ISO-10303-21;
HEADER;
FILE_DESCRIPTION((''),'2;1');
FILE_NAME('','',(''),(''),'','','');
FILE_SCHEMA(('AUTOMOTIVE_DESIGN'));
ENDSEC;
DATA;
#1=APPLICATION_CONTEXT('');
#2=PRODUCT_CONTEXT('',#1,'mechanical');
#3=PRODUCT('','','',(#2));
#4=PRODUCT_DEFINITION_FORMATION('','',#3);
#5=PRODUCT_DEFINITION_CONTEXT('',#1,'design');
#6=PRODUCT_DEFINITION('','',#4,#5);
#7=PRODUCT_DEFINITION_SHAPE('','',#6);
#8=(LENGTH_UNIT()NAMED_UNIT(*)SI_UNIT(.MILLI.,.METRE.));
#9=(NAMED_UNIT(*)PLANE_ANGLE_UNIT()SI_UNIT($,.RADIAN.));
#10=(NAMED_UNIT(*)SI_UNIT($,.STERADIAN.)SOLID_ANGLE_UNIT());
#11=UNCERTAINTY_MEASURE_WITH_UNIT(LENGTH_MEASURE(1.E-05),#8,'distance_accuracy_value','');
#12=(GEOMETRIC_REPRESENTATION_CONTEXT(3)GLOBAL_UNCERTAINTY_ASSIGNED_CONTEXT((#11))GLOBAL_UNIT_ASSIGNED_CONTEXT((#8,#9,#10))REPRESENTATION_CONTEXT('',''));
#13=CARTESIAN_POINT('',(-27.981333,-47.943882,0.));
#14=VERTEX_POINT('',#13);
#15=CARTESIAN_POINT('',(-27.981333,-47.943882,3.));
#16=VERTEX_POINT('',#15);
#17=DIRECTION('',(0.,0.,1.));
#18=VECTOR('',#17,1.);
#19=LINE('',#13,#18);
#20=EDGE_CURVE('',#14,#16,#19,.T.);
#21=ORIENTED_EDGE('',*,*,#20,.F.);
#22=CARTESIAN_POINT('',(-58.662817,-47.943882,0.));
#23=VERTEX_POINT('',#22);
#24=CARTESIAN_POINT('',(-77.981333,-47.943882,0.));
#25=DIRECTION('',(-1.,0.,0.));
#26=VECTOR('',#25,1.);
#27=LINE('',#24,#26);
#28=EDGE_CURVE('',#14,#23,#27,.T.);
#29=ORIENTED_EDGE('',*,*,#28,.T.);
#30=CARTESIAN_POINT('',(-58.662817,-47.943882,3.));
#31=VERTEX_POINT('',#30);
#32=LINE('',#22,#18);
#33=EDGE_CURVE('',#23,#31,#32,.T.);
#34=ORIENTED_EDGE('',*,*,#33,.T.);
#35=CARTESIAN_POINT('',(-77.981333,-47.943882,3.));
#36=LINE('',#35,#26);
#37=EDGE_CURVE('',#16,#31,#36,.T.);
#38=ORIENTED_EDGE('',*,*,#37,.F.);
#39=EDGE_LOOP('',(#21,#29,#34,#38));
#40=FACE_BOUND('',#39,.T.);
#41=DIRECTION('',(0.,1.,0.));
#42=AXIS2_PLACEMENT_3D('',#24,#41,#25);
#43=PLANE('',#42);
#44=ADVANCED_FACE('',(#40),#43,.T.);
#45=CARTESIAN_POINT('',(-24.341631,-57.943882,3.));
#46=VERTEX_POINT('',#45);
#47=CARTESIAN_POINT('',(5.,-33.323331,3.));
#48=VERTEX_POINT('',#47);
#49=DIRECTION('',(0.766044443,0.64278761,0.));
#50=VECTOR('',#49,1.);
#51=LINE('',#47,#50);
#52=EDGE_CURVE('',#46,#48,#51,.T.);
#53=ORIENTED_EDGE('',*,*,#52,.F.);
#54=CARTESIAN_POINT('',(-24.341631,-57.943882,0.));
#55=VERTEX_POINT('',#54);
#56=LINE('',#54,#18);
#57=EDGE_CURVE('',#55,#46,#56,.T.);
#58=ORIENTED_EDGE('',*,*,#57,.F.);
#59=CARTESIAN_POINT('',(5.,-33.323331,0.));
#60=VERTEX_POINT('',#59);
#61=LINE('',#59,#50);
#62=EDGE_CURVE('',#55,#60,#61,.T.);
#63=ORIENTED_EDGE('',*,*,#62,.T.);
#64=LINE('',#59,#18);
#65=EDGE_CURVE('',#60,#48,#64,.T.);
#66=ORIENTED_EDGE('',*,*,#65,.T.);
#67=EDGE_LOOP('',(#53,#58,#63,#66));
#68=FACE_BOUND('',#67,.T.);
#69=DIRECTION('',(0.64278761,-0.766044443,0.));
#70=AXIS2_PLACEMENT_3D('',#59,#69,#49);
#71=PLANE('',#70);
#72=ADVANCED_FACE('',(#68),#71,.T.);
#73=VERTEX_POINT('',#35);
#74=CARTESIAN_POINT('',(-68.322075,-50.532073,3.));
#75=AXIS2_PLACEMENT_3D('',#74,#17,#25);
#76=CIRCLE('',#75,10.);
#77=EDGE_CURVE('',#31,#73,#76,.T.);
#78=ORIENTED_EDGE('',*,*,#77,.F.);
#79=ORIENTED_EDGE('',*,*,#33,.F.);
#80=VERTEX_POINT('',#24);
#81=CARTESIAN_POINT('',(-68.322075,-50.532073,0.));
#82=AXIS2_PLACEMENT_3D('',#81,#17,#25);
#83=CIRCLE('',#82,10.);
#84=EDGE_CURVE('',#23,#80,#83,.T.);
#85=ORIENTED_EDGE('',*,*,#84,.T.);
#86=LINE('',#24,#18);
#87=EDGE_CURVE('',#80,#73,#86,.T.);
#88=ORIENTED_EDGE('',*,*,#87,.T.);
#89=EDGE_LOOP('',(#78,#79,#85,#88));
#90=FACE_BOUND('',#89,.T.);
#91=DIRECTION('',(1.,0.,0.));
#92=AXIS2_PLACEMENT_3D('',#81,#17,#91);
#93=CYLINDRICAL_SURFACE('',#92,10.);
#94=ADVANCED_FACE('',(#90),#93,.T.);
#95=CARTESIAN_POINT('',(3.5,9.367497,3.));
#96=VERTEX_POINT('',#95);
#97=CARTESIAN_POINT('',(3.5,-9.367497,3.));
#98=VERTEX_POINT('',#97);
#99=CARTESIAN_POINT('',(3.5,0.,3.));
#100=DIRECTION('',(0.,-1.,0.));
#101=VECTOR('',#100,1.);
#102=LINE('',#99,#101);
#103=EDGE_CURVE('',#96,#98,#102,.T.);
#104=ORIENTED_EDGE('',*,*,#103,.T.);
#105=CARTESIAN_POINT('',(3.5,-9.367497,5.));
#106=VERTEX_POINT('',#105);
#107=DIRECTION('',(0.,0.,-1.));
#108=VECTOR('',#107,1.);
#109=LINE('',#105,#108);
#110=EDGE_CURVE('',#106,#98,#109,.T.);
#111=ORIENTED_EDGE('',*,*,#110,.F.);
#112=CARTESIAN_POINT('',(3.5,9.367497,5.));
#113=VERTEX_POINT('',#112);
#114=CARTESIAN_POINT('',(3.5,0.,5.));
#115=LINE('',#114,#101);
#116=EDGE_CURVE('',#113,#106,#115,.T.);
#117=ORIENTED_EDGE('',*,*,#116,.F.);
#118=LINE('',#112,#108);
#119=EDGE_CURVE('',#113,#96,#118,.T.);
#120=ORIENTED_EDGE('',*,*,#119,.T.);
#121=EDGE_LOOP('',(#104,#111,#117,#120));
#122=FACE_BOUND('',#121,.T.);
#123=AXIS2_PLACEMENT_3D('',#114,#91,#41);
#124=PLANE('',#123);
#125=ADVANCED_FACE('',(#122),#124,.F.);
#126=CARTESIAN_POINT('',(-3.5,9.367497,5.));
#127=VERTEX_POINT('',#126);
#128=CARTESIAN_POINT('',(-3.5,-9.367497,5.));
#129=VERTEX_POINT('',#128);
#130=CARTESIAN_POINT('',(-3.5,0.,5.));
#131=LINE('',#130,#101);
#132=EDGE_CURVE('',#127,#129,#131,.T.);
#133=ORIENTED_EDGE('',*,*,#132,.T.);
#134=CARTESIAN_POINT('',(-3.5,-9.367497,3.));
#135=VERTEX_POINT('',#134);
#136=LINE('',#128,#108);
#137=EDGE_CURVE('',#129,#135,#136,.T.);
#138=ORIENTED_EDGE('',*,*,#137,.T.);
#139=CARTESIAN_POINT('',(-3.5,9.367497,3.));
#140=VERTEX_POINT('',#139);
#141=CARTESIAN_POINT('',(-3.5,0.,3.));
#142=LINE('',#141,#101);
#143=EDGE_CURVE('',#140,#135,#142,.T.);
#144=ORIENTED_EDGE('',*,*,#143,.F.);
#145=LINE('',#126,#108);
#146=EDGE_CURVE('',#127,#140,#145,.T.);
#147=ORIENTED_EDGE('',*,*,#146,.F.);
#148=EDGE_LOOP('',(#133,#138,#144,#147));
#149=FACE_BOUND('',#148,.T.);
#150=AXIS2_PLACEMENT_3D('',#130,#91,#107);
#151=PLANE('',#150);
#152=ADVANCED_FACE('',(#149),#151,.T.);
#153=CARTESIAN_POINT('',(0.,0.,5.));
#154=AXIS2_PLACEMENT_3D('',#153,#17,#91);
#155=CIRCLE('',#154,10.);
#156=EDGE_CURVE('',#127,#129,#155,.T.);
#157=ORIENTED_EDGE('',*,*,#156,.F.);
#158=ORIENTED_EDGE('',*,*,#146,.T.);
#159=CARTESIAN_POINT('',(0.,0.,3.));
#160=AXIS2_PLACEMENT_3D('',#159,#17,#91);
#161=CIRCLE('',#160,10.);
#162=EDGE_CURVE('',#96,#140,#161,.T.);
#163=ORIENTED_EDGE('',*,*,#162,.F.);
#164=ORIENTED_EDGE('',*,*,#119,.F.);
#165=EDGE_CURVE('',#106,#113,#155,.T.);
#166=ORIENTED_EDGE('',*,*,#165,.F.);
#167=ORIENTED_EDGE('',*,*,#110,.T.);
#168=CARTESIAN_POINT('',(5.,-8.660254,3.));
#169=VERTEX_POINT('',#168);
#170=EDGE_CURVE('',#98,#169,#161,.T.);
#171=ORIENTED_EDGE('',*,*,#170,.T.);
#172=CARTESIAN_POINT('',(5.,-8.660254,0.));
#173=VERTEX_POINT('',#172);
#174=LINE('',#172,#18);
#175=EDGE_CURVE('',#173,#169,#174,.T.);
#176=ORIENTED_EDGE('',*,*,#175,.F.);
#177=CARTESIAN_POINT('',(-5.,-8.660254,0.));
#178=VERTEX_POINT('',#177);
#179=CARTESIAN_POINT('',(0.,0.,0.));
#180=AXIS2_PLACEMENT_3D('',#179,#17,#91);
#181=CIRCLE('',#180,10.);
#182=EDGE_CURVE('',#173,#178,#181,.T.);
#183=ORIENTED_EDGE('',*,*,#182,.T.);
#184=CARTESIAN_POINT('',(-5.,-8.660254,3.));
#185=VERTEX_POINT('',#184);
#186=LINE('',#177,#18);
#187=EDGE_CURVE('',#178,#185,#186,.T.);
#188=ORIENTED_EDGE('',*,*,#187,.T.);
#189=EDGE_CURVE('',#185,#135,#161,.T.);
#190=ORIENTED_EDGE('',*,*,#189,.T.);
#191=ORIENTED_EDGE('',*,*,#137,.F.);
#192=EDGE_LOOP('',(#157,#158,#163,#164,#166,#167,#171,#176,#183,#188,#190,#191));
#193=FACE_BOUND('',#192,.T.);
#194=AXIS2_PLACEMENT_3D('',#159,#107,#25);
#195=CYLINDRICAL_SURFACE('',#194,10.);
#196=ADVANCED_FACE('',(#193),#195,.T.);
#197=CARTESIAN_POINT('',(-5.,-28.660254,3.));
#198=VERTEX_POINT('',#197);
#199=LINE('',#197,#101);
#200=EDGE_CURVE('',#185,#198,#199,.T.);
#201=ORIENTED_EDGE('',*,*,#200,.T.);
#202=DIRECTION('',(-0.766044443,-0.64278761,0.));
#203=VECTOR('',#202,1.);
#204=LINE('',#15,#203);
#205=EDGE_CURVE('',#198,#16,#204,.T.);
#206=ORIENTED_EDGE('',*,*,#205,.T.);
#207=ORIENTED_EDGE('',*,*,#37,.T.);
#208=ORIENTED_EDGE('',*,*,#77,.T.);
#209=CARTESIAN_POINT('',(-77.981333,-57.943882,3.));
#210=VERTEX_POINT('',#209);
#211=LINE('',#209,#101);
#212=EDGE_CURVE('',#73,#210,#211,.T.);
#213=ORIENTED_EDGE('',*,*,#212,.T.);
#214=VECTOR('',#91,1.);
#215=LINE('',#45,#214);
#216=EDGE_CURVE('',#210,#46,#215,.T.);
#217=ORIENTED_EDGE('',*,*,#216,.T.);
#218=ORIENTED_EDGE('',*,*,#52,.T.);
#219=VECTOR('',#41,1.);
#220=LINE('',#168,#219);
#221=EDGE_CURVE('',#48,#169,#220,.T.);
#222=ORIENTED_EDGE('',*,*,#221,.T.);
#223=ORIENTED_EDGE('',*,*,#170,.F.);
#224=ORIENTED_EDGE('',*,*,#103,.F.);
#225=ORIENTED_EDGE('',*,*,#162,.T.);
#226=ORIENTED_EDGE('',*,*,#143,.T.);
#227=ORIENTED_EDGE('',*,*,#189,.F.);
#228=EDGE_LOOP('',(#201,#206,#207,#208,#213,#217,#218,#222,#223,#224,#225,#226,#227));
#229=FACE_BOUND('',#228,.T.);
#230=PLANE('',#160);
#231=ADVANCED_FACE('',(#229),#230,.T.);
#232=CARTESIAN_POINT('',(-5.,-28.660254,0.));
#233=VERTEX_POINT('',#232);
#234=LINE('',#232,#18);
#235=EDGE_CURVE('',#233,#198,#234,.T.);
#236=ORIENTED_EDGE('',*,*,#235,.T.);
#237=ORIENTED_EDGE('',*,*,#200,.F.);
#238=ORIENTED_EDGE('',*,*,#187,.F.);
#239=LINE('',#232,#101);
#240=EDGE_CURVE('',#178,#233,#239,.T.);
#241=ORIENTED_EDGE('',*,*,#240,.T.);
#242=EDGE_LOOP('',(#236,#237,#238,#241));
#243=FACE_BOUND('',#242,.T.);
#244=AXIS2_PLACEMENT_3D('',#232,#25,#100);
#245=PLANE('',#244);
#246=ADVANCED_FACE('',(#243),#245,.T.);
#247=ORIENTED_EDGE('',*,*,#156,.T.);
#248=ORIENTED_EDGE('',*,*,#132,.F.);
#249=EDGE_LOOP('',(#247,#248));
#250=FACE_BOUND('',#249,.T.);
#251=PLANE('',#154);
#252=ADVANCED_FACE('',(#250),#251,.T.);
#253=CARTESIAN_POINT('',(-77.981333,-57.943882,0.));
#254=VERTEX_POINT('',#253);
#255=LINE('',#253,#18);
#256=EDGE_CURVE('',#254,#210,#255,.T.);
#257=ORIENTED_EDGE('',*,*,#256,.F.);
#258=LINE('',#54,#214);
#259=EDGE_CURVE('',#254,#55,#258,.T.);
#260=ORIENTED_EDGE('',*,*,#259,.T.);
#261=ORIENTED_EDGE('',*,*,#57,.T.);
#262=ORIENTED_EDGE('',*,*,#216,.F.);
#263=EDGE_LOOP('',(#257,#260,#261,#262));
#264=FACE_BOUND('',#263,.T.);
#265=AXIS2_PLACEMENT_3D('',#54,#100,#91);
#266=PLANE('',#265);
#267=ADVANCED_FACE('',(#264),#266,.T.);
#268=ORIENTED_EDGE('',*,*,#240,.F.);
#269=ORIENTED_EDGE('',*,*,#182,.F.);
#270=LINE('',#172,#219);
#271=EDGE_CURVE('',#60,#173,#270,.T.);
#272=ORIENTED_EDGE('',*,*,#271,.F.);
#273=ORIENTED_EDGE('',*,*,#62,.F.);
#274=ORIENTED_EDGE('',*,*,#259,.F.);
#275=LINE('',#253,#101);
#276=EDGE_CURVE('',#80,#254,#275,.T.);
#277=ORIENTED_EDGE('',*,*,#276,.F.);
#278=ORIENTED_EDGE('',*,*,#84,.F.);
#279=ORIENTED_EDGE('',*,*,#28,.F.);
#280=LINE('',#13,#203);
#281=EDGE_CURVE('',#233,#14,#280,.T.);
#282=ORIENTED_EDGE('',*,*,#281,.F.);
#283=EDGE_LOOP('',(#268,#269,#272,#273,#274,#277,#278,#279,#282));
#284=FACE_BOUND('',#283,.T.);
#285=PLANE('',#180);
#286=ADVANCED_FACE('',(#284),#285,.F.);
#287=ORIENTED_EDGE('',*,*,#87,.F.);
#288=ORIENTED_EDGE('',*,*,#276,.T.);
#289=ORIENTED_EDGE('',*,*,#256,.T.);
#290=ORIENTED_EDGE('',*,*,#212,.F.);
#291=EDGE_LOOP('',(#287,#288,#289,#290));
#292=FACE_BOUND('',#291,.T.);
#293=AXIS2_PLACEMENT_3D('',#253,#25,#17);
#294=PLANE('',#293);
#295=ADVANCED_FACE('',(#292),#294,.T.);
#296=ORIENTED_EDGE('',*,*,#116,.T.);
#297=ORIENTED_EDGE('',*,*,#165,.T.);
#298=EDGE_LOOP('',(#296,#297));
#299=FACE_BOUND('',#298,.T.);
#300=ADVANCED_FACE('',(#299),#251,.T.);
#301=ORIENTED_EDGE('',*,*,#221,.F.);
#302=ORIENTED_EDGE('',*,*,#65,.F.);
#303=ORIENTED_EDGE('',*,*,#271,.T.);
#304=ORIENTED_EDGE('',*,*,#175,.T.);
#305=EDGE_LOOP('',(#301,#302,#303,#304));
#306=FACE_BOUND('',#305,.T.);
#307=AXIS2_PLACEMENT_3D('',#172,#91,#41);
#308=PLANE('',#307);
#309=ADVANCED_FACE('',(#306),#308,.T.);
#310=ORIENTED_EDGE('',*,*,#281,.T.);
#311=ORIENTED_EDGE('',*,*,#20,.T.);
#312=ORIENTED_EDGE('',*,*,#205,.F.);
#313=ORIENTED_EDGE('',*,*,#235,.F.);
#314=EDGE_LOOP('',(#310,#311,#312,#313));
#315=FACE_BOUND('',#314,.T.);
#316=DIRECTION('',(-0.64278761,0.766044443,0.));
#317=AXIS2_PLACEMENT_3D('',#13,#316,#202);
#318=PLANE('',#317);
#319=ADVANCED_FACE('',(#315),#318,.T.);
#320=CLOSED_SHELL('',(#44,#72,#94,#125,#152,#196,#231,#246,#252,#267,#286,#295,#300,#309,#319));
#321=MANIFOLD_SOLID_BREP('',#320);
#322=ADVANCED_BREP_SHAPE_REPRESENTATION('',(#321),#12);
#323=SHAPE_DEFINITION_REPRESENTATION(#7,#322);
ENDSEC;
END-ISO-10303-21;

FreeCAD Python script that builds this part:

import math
import FreeCAD as App
import Part
import Sketcher
Q = App.Units.Quantity

doc = App.newDocument("Part")
params = doc.addObject("Spreadsheet::Sheet", "Params")
for row, (alias, value) in enumerate([
    ("sketch1_diameter", "20 mm"),
    ("pad1_length", "3 mm"),
    ("sketch2_width", "10 mm"),
    ("sketch2_width2", "50 mm"),
    ("sketch2_height", "20 mm"),
    ("sketch2_length", "30 mm"),
    ("pad2_length", "3 mm"),
    ("sketch3_radius", "10 mm"),
    ("pad3_length", "3 mm"),
    ("sketch4_radius", "10 mm"),
    ("pad4_length", "2 mm"),
], start=1):
    params.set(f"A{row}", alias)
    params.set(f"B{row}", "=" + value)
    params.setAlias(f"B{row}", alias)

body = doc.addObject("PartDesign::Body", "Body")

sketch1 = body.newObject("Sketcher::SketchObject", "Sketch")
sketch1.AttachmentSupport = (doc.getObject("XY_Plane"), [""])
sketch1.MapMode = "FlatFace"
sketch1.addGeometry(Part.Circle(App.Vector(0, 0, 0), App.Vector(0, 0, 1), 10), False)
sketch1.addConstraint(Sketcher.Constraint("Coincident", 0, 3, -1, 1))
sketch1.addConstraint(Sketcher.Constraint("Diameter", 0, Q("20 mm")))
sketch1.setExpression("Constraints[1]", "Params.sketch1_diameter")
pad1 = body.newObject("PartDesign::Pad", "Pad")
pad1.Profile = sketch1
pad1.setExpression("Length", "Params.pad1_length")

sketch2 = body.newObject("Sketcher::SketchObject", "Sketch001")
sketch2.AttachmentSupport = (doc.getObject("XY_Plane"), [""])
sketch2.MapMode = "FlatFace"
sketch2.AttachmentOffset = App.Placement(App.Vector(0, 0, 3), App.Rotation())
sketch2.addGeometry(Part.LineSegment(App.Vector(5, -9, 0), App.Vector(-5, -9, 0)), False)
sketch2.addGeometry(Part.LineSegment(App.Vector(-5, -9, 0), App.Vector(-5, -29, 0)), False)
sketch2.addGeometry(Part.LineSegment(App.Vector(-5, -29, 0), App.Vector(-28, -48, 0)), False)
sketch2.addGeometry(Part.LineSegment(App.Vector(-28, -48, 0), App.Vector(-78, -48, 0)), False)
sketch2.addGeometry(Part.LineSegment(App.Vector(-78, -48, 0), App.Vector(-78, -58, 0)), False)
sketch2.addGeometry(Part.LineSegment(App.Vector(-78, -58, 0), App.Vector(-24, -58, 0)), False)
sketch2.addGeometry(Part.LineSegment(App.Vector(-24, -58, 0), App.Vector(5, -33, 0)), False)
sketch2.addGeometry(Part.LineSegment(App.Vector(5, -33, 0), App.Vector(5, -9, 0)), False)
sketch2.addConstraint(Sketcher.Constraint("Coincident", 0, 2, 1, 1))
sketch2.addConstraint(Sketcher.Constraint("Coincident", 1, 2, 2, 1))
sketch2.addConstraint(Sketcher.Constraint("Coincident", 2, 2, 3, 1))
sketch2.addConstraint(Sketcher.Constraint("Coincident", 3, 2, 4, 1))
sketch2.addConstraint(Sketcher.Constraint("Coincident", 4, 2, 5, 1))
sketch2.addConstraint(Sketcher.Constraint("Coincident", 5, 2, 6, 1))
sketch2.addConstraint(Sketcher.Constraint("Coincident", 6, 2, 7, 1))
sketch2.addConstraint(Sketcher.Constraint("Coincident", 7, 2, 0, 1))
sketch2.addConstraint(Sketcher.Constraint("Horizontal", 0))
sketch2.addConstraint(Sketcher.Constraint("Vertical", 1))
sketch2.addConstraint(Sketcher.Constraint("Horizontal", 3))
sketch2.addConstraint(Sketcher.Constraint("Vertical", 4))
sketch2.addConstraint(Sketcher.Constraint("Horizontal", 5))
sketch2.addConstraint(Sketcher.Constraint("Vertical", 7))
sketch2.addConstraint(Sketcher.Constraint("Parallel", 2, 6))
sketch2.addConstraint(Sketcher.Constraint("Equal", 0, 4))
sketch2.addConstraint(Sketcher.Constraint("DistanceX", 0, 2, 0, 1, Q("10 mm")))
sketch2.addConstraint(Sketcher.Constraint("DistanceX", 3, 2, 3, 1, Q("50 mm")))
sketch2.addConstraint(Sketcher.Constraint("DistanceY", 1, 2, 1, 1, Q("20 mm")))
sketch2.addConstraint(Sketcher.Constraint("Angle", 2, Q("-140 deg")))
sketch2.addConstraint(Sketcher.Constraint("Distance", 2, Q("30 mm")))
sketch2.addConstraint(Sketcher.Constraint("DistanceX", 0, 2, -1, 1, Q("5 mm")))
sketch2.addConstraint(Sketcher.Constraint("Distance", 6, Q("38.302779 mm")))
sketch2.addConstraint(Sketcher.Constraint("DistanceY", 6, 2, -1, 1, Q("33.323331 mm")))
sketch2.setExpression("Constraints[16]", "Params.sketch2_width")
sketch2.setExpression("Constraints[17]", "Params.sketch2_width2")
sketch2.setExpression("Constraints[18]", "Params.sketch2_height")
sketch2.setExpression("Constraints[20]", "Params.sketch2_length")
pad2 = body.newObject("PartDesign::Pad", "Pad001")
pad2.Profile = sketch2
pad2.setExpression("Length", "Params.pad2_length")
pad2.Reversed = True

sketch3 = body.newObject("Sketcher::SketchObject", "Sketch002")
sketch3.AttachmentSupport = (doc.getObject("XY_Plane"), [""])
sketch3.MapMode = "FlatFace"
sketch3.AttachmentOffset = App.Placement(App.Vector(0, 0, 3), App.Rotation())
sketch3.addGeometry(Part.LineSegment(App.Vector(-78, -48, 0), App.Vector(-59, -48, 0)), False)
sketch3.addGeometry(Part.ArcOfCircle(Part.Circle(App.Vector(-68, -51, 0), App.Vector(0, 0, 1), 10), math.radians(15), math.radians(165)), False)
sketch3.addConstraint(Sketcher.Constraint("Coincident", 0, 1, 1, 2))
sketch3.addConstraint(Sketcher.Constraint("Coincident", 1, 1, 0, 2))
sketch3.addConstraint(Sketcher.Constraint("Horizontal", 0))
sketch3.addConstraint(Sketcher.Constraint("Radius", 1, Q("10 mm")))
sketch3.addConstraint(Sketcher.Constraint("DistanceX", 0, 1, 0, 2, Q("19.318517 mm")))
sketch3.addConstraint(Sketcher.Constraint("DistanceX", 1, 3, -1, 1, Q("68.322075 mm")))
sketch3.addConstraint(Sketcher.Constraint("DistanceY", 1, 3, -1, 1, Q("50.532073 mm")))
sketch3.setExpression("Constraints[3]", "Params.sketch3_radius")
pad3 = body.newObject("PartDesign::Pad", "Pad002")
pad3.Profile = sketch3
pad3.setExpression("Length", "Params.pad3_length")
pad3.Reversed = True

sketch4 = body.newObject("Sketcher::SketchObject", "Sketch003")
sketch4.AttachmentSupport = (doc.getObject("XY_Plane"), [""])
sketch4.MapMode = "FlatFace"
sketch4.AttachmentOffset = App.Placement(App.Vector(0, 0, 3), App.Rotation())
sketch4.addGeometry(Part.LineSegment(App.Vector(-3.5, -9.4, 0), App.Vector(-3.5, 9.4, 0)), False)
sketch4.addGeometry(Part.ArcOfCircle(Part.Circle(App.Vector(0, 0, 0), App.Vector(0, 0, 1), 10), math.radians(110), math.radians(240)), False)
sketch4.addGeometry(Part.ArcOfCircle(Part.Circle(App.Vector(0, 0, 0), App.Vector(0, 0, 1), 10), math.radians(-120), math.radians(-110.49)), False)
sketch4.addGeometry(Part.ArcOfCircle(Part.Circle(App.Vector(0, 0, 0), App.Vector(0, 0, 1), 10), math.radians(-60), math.radians(70)), False)
sketch4.addGeometry(Part.LineSegment(App.Vector(3.5, 9.4, 0), App.Vector(3.5, -9.4, 0)), False)
sketch4.addGeometry(Part.ArcOfCircle(Part.Circle(App.Vector(0, 0, 0), App.Vector(0, 0, 1), 10), math.radians(-69.51), math.radians(-60)), False)
sketch4.addConstraint(Sketcher.Constraint("Coincident", 0, 2, 1, 1))
sketch4.addConstraint(Sketcher.Constraint("Tangent", 1, 2, 2, 1))
sketch4.addConstraint(Sketcher.Constraint("Coincident", 2, 2, 0, 1))
sketch4.addConstraint(Sketcher.Constraint("Coincident", 3, 2, 4, 1))
sketch4.addConstraint(Sketcher.Constraint("Coincident", 4, 2, 5, 1))
sketch4.addConstraint(Sketcher.Constraint("Tangent", 5, 2, 3, 1))
sketch4.addConstraint(Sketcher.Constraint("Vertical", 0))
sketch4.addConstraint(Sketcher.Constraint("Vertical", 4))
sketch4.addConstraint(Sketcher.Constraint("Coincident", 1, 3, -1, 1))
sketch4.addConstraint(Sketcher.Constraint("Coincident", 3, 3, -1, 1))
sketch4.addConstraint(Sketcher.Constraint("Equal", 1, 2))
sketch4.addConstraint(Sketcher.Constraint("Equal", 2, 3))
sketch4.addConstraint(Sketcher.Constraint("Equal", 3, 5))
sketch4.addConstraint(Sketcher.Constraint("Horizontal", 0, 2, 3, 2))
sketch4.addConstraint(Sketcher.Constraint("Horizontal", 1, 2, 5, 2))
sketch4.addConstraint(Sketcher.Constraint("Radius", 1, Q("10 mm")))
sketch4.addConstraint(Sketcher.Constraint("DistanceX", 1, 2, -1, 1, Q("5 mm")))
sketch4.addConstraint(Sketcher.Constraint("DistanceX", 0, 2, 3, 2, Q("7 mm")))
sketch4.setExpression("Constraints[15]", "Params.sketch4_radius")
pad4 = body.newObject("PartDesign::Pad", "Pad003")
pad4.Profile = sketch4
pad4.setExpression("Length", "Params.pad4_length")

doc.recompute()
